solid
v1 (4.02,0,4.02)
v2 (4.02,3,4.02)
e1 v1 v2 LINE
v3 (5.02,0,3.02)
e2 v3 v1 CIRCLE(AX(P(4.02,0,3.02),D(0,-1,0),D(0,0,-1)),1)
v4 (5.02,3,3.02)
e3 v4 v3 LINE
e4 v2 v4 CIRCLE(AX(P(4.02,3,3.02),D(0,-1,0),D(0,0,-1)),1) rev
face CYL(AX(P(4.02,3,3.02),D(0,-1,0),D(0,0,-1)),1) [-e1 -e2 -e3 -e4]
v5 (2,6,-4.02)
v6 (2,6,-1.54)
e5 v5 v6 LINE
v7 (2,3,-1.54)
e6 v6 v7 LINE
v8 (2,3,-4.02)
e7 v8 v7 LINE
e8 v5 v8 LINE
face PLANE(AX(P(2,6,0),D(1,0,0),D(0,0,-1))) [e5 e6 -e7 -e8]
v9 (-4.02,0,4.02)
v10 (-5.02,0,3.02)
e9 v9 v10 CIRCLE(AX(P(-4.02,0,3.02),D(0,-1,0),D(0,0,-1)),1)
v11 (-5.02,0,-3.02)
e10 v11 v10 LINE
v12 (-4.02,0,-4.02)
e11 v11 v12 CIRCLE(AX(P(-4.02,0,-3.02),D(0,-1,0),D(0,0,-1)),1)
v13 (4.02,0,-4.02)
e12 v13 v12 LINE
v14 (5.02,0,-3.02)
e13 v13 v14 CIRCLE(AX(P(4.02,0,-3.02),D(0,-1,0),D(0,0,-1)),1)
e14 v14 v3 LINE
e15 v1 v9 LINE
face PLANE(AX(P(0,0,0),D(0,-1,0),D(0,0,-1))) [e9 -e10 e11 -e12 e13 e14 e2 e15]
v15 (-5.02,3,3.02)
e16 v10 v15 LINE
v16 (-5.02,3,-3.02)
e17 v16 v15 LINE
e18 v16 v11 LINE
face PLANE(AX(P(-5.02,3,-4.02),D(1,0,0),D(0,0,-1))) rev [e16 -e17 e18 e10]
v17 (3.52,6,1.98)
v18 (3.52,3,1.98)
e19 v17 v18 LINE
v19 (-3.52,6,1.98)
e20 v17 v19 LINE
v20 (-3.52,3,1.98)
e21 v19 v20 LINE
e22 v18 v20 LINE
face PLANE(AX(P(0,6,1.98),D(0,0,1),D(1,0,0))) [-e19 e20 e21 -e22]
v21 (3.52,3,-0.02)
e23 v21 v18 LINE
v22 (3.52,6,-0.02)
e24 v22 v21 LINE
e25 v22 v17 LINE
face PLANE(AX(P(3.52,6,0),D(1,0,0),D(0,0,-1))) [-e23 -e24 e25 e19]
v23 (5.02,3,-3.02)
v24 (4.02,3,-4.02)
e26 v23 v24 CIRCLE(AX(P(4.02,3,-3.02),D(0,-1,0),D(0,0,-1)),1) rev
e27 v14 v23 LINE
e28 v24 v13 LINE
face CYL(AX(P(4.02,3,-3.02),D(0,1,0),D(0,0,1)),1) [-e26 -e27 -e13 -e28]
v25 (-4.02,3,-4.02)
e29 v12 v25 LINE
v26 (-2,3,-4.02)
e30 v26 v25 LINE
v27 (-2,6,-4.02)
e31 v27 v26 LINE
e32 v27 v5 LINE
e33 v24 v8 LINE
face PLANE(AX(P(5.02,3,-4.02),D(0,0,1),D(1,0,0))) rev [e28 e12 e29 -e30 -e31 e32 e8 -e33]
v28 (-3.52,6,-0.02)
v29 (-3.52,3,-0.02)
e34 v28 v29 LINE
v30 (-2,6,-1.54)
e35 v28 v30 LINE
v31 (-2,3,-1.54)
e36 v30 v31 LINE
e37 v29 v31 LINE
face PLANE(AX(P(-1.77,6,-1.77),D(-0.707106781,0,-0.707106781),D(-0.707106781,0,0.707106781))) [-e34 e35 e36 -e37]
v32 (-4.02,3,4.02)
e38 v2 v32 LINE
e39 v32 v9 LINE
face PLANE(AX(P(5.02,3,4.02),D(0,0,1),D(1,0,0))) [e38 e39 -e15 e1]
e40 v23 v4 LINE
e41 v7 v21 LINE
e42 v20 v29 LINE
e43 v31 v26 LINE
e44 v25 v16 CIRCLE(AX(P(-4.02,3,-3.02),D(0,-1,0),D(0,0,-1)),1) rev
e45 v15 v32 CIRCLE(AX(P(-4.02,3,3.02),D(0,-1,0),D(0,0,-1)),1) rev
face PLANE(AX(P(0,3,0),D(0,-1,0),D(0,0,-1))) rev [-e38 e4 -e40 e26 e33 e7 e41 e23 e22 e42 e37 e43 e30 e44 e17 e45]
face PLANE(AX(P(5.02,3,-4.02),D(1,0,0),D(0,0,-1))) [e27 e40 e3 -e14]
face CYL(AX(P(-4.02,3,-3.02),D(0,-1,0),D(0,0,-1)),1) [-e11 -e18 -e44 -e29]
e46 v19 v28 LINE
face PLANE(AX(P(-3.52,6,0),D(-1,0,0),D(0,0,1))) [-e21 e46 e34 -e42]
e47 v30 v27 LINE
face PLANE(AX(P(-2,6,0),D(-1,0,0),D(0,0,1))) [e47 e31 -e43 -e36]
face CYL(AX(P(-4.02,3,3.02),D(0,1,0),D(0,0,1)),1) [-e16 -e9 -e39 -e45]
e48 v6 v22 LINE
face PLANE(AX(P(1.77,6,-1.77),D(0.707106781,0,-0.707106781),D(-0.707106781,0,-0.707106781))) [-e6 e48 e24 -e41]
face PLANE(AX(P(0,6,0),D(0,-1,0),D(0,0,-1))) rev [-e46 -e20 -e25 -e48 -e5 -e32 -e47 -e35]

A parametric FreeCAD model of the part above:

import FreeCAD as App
import Part
import Sketcher

V = App.Vector


def edges_at(feature, points):
    """Names of the edges that pass closest to the given points."""
    edges = feature.Shape.Edges
    near = lambda p: min(range(len(edges)), key=lambda i: edges[i].distToShape(Part.Vertex(*p))[0])
    return sorted({f"Edge{near(p) + 1}" for p in points})

doc = App.newDocument("Part")
body = doc.addObject("PartDesign::Body", "Body")

sketch1 = doc.addObject("Sketcher::SketchObject", "Sketch")
body.addObject(sketch1)
sketch1.AttachmentSupport = (doc.XZ_Plane, [""])
sketch1.MapMode = "FlatFace"
sketch1.addGeometry([
    Part.LineSegment(V(-5, -4, 0), V(-5, 4, 0)),
    Part.LineSegment(V(-5, 4, 0), V(5, 4, 0)),
    Part.LineSegment(V(5, 4, 0), V(5, -4, 0)),
    Part.LineSegment(V(5, -4, 0), V(-5, -4, 0)),
], False)
sketch1.addConstraint([
    Sketcher.Constraint("Coincident", 0, 2, 1, 1),
    Sketcher.Constraint("Coincident", 1, 2, 2, 1),
    Sketcher.Constraint("Coincident", 2, 2, 3, 1),
    Sketcher.Constraint("Coincident", 3, 2, 0, 1),
    Sketcher.Constraint("Vertical", 0),
    Sketcher.Constraint("Horizontal", 1),
    Sketcher.Constraint("Vertical", 2),
    Sketcher.Constraint("Horizontal", 3),
    Sketcher.Constraint("Symmetric", 0, 2, 2, 2, -1, 1),
    Sketcher.Constraint("DistanceX", 1, 1, 1, 2, 10.04),
    Sketcher.Constraint("DistanceY", 0, 1, 0, 2, 8.04),
])
pad1 = doc.addObject("PartDesign::Pad", "Pad")
body.addObject(pad1)
pad1.Profile = sketch1
pad1.Length = 3
pad1.Reversed = True

sketch2 = doc.addObject("Sketcher::SketchObject", "Sketch001")
body.addObject(sketch2)
sketch2.AttachmentSupport = (doc.XZ_Plane, [""])
sketch2.MapMode = "FlatFace"
sketch2.AttachmentOffset = App.Placement(V(0, 0, -3), App.Rotation())
sketch2.addGeometry([
    Part.LineSegment(V(-2, -4, 0), V(-2, -1.5, 0)),
    Part.LineSegment(V(-2, -1.5, 0), V(-3.5, 0, 0)),
    Part.LineSegment(V(-3.5, 0, 0), V(-3.5, 2, 0)),
    Part.LineSegment(V(-3.5, 2, 0), V(3.5, 2, 0)),
    Part.LineSegment(V(3.5, 2, 0), V(3.5, 0, 0)),
    Part.LineSegment(V(3.5, 0, 0), V(2, -1.5, 0)),
    Part.LineSegment(V(2, -1.5, 0), V(2, -4, 0)),
    Part.LineSegment(V(2, -4, 0), V(-2, -4, 0)),
], False)
sketch2.addConstraint([
    Sketcher.Constraint("Coincident", 0, 2, 1, 1),
    Sketcher.Constraint("Coincident", 1, 2, 2, 1),
    Sketcher.Constraint("Coincident", 2, 2, 3, 1),
    Sketcher.Constraint("Coincident", 3, 2, 4, 1),
    Sketcher.Constraint("Coincident", 4, 2, 5, 1),
    Sketcher.Constraint("Coincident", 5, 2, 6, 1),
    Sketcher.Constraint("Coincident", 6, 2, 7, 1),
    Sketcher.Constraint("Coincident", 7, 2, 0, 1),
    Sketcher.Constraint("Vertical", 0),
    Sketcher.Constraint("Vertical", 2),
    Sketcher.Constraint("Horizontal", 3),
    Sketcher.Constraint("Vertical", 4),
    Sketcher.Constraint("Vertical", 6),
    Sketcher.Constraint("Horizontal", 7),
    Sketcher.Constraint("Symmetric", 1, 2, 4, 2, -2),
    Sketcher.Constraint("Symmetric", 0, 2, 5, 2, -2),
    Sketcher.Constraint("Perpendicular", 1, 5),
    Sketcher.Constraint("DistanceX", 7, 2, 7, 1, 4.0),
    Sketcher.Constraint("DistanceY", 2, 1, 2, 2, 2.0),
    Sketcher.Constraint("DistanceY", 6, 2, 4, 2, 4.0),
    Sketcher.Constraint("DistanceX", 3, 1, 3, 2, 7.04),
    Sketcher.Constraint("DistanceY", 0, 2, -1, 1, 1.54),
])
pad2 = doc.addObject("PartDesign::Pad", "Pad001")
body.addObject(pad2)
pad2.Profile = sketch2
pad2.Length = 3
pad2.Reversed = True
doc.recompute()

fillet = doc.addObject("PartDesign::Fillet", "Fillet")
body.addObject(fillet)
fillet.Base = (pad2, edges_at(pad2, [
    (5.02, 1.5, -4.02),
    (-5.02, 1.5, -4.02),
    (-5.02, 1.5, 4.02),
    (5.02, 1.5, 4.02),
]))
fillet.Radius = 1

doc.recompute()
